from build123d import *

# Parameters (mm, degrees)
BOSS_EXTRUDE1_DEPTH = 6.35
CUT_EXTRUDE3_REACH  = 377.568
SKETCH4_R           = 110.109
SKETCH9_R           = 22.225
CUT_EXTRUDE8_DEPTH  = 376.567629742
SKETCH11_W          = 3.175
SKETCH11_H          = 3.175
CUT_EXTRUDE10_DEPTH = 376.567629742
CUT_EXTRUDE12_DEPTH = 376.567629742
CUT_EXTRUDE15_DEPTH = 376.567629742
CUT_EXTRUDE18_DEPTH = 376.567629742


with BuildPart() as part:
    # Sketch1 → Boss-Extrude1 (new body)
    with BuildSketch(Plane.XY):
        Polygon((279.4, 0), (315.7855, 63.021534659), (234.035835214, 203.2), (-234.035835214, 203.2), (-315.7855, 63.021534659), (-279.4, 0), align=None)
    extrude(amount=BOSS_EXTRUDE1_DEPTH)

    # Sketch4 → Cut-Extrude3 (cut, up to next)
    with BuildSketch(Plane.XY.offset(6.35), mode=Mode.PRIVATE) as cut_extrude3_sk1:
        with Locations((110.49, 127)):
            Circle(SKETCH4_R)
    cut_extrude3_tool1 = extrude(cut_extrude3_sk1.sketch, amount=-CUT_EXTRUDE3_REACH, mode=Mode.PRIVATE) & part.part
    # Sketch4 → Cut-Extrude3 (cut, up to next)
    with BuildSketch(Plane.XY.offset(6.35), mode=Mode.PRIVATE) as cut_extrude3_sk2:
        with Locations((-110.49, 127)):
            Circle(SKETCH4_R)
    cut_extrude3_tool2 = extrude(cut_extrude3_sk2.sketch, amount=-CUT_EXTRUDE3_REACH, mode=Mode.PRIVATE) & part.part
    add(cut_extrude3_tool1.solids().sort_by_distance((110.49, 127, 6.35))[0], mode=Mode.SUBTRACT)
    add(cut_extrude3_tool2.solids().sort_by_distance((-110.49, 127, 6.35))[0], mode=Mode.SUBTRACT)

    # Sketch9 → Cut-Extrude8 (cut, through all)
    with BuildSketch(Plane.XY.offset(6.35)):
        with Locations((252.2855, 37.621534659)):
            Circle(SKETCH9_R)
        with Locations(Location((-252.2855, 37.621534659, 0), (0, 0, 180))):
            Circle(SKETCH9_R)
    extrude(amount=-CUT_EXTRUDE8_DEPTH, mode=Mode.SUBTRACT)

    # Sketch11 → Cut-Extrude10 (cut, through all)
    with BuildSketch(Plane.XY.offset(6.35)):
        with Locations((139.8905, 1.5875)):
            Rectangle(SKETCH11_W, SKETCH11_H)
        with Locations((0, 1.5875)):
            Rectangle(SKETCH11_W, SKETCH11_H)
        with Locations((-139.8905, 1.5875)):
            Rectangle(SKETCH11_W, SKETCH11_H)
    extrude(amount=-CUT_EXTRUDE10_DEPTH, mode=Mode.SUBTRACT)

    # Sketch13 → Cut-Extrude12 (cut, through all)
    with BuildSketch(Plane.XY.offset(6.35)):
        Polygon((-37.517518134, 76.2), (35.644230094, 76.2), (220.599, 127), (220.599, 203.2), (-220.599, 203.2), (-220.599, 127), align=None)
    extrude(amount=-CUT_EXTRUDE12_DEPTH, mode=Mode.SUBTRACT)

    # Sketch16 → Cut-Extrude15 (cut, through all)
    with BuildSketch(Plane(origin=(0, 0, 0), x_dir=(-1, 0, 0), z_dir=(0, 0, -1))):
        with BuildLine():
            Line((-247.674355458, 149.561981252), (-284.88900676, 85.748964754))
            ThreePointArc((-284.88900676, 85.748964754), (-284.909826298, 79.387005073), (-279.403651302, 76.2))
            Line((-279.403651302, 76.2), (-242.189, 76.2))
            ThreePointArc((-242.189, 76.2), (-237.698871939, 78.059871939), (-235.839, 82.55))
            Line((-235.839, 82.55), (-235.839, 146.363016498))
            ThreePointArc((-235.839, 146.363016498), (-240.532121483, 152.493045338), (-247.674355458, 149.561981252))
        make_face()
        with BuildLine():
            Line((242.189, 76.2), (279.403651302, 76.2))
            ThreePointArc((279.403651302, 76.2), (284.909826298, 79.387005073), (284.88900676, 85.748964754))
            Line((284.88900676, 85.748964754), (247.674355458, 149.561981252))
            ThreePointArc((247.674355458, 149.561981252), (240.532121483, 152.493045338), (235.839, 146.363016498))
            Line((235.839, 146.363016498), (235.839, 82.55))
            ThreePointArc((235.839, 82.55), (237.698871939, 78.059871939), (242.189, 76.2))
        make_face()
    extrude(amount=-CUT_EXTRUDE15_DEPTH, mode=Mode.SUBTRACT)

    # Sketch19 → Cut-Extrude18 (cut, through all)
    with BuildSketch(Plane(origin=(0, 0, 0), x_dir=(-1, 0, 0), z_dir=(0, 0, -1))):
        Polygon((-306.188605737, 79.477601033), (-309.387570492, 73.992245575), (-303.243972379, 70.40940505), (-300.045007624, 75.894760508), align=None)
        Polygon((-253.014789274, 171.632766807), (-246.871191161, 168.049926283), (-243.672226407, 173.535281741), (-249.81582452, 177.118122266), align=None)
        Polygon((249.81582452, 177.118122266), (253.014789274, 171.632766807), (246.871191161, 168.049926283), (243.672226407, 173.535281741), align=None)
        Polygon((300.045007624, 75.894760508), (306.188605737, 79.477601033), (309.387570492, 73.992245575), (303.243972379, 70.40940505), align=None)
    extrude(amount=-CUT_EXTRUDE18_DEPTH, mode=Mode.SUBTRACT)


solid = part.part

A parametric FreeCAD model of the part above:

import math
import FreeCAD as App
import Part
import Sketcher

V = App.Vector
Q = App.Units.Quantity

doc = App.newDocument("Part")
body = doc.addObject("PartDesign::Body", "Body")

# Sketch on XY plane
sketch1 = doc.addObject("Sketcher::SketchObject", "Sketch")
body.addObject(sketch1)
sketch1.AttachmentSupport = (doc.XY_Plane, [""])
sketch1.MapMode = "FlatFace"
sketch1.addGeometry([
    Part.LineSegment(V(279, 0, 0), V(316, 63, 0)),  # 0
    Part.LineSegment(V(316, 63, 0), V(234, 203, 0)),  # 1
    Part.LineSegment(V(234, 203, 0), V(-234, 203, 0)),  # 2
    Part.LineSegment(V(-234, 203, 0), V(-316, 63, 0)),  # 3
    Part.LineSegment(V(-316, 63, 0), V(-279, 0, 0)),  # 4
    Part.LineSegment(V(-279, 0, 0), V(279, 0, 0)),  # 5
], False)
sketch1.addConstraint([
    Sketcher.Constraint("Coincident", 0, 2, 1, 1),
    Sketcher.Constraint("Coincident", 1, 2, 2, 1),
    Sketcher.Constraint("Coincident", 2, 2, 3, 1),
    Sketcher.Constraint("Coincident", 3, 2, 4, 1),
    Sketcher.Constraint("Coincident", 4, 2, 5, 1),
    Sketcher.Constraint("Coincident", 5, 2, 0, 1),
    Sketcher.Constraint("Horizontal", 2),
    Sketcher.Constraint("Horizontal", 5),
    Sketcher.Constraint("Symmetric", 4, 2, 5, 2, -1, 1),
    Sketcher.Constraint("Symmetric", 0, 2, 3, 2, -2),
    Sketcher.Constraint("Equal", 1, 3),
    Sketcher.Constraint("DistanceX", 5, 1, 5, 2, Q("22 in")),
    Sketcher.Constraint("DistanceY", -1, 1, 1, 2, Q("8 in")),
    Sketcher.Constraint("Angle", 0, Q("60 deg")),
    Sketcher.Constraint("Angle", 1, Q("120.25 deg")),
    Sketcher.Constraint("Distance", 0, Q("2.865 in")),
])
pad1 = doc.addObject("PartDesign::Pad", "Pad")
body.addObject(pad1)
pad1.Profile = sketch1
pad1.Length = Q("0.25 in")

# Sketch on XY plane
sketch2 = doc.addObject("Sketcher::SketchObject", "Sketch001")
body.addObject(sketch2)
sketch2.AttachmentSupport = (doc.XY_Plane, [""])
sketch2.MapMode = "FlatFace"
sketch2.AttachmentOffset = App.Placement(V(0, 0, 0.25 * 25.4), App.Rotation())
sketch2.addGeometry(Part.Circle(V(110, 127, 0), V(0, 0, 1), 110), False)
sketch2.addConstraint([
    Sketcher.Constraint("Diameter", 0, Q("8.67 in")),
    Sketcher.Constraint("DistanceY", -1, 1, 0, 3, Q("5 in")),
    Sketcher.Constraint("DistanceX", -1, 1, 0, 3, Q("4.35 in")),
])
pocket1 = doc.addObject("PartDesign::Pocket", "Pocket")
body.addObject(pocket1)
pocket1.Profile = sketch2
pocket1.Type = "UpToFirst"

# Sketch on XY plane
sketch3 = doc.addObject("Sketcher::SketchObject", "Sketch002")
body.addObject(sketch3)
sketch3.AttachmentSupport = (doc.XY_Plane, [""])
sketch3.MapMode = "FlatFace"
sketch3.AttachmentOffset = App.Placement(V(0, 0, 0.25 * 25.4), App.Rotation())
sketch3.addGeometry(Part.Circle(V(-110, 127, 0), V(0, 0, 1), 110), False)
sketch3.addConstraint([
    Sketcher.Constraint("Diameter", 0, Q("8.67 in")),
    Sketcher.Constraint("DistanceY", -1, 1, 0, 3, Q("5 in")),
    Sketcher.Constraint("DistanceX", 0, 3, -1, 1, Q("4.35 in")),
])
pocket2 = doc.addObject("PartDesign::Pocket", "Pocket001")
body.addObject(pocket2)
pocket2.Profile = sketch3
pocket2.Type = "UpToFirst"

# Sketch on XY plane
sketch4 = doc.addObject("Sketcher::SketchObject", "Sketch003")
body.addObject(sketch4)
sketch4.AttachmentSupport = (doc.XY_Plane, [""])
sketch4.MapMode = "FlatFace"
sketch4.AttachmentOffset = App.Placement(V(0, 0, 0.25 * 25.4), App.Rotation())
sketch4.addGeometry([
    Part.Circle(V(252, 38, 0), V(0, 0, 1), 22),
    Part.Circle(V(-252, 38, 0), V(0, 0, 1), 22),
], False)
sketch4.addConstraint([
    Sketcher.Constraint("Equal", 0, 1),
    Sketcher.Constraint("Symmetric", 0, 3, 1, 3, -2),
    Sketcher.Constraint("Diameter", 0, Q("1.75 in")),
    Sketcher.Constraint("DistanceX", 1, 3, 0, 3, Q("19.865 in")),
    Sketcher.Constraint("DistanceY", -1, 1, 0, 3, Q("37.621535 mm")),
])
pocket3 = doc.addObject("PartDesign::Pocket", "Pocket002")
body.addObject(pocket3)
pocket3.Profile = sketch4
pocket3.Type = "ThroughAll"

# Sketch on XY plane
sketch5 = doc.addObject("Sketcher::SketchObject", "Sketch004")
body.addObject(sketch5)
sketch5.AttachmentSupport = (doc.XY_Plane, [""])
sketch5.MapMode = "FlatFace"
sketch5.AttachmentOffset = App.Placement(V(0, 0, 0.25 * 25.4), App.Rotation())
sketch5.addGeometry([
    Part.LineSegment(V(138.3, 3.2, 0), V(138.3, 0, 0)),  # 0
    Part.LineSegment(V(138.3, 0, 0), V(141.5, 0, 0)),  # 1
    Part.LineSegment(V(141.5, 0, 0), V(141.5, 3.2, 0)),  # 2
    Part.LineSegment(V(141.5, 3.2, 0), V(138.3, 3.2, 0)),  # 3
    Part.LineSegment(V(-1.6, 3.2, 0), V(-1.6, 0, 0)),  # 4
    Part.LineSegment(V(-1.6, 0, 0), V(1.6, 0, 0)),  # 5
    Part.LineSegment(V(1.6, 0, 0), V(1.6, 3.2, 0)),  # 6
    Part.LineSegment(V(1.6, 3.2, 0), V(-1.6, 3.2, 0)),  # 7
    Part.LineSegment(V(-141.5, 3.2, 0), V(-141.5, 0, 0)),  # 8
    Part.LineSegment(V(-141.5, 0, 0), V(-138.3, 0, 0)),  # 9
    Part.LineSegment(V(-138.3, 0, 0), V(-138.3, 3.2, 0)),  # 10
    Part.LineSegment(V(-138.3, 3.2, 0), V(-141.5, 3.2, 0)),  # 11
], False)
sketch5.addConstraint([
    Sketcher.Constraint("Coincident", 0, 2, 1, 1),
    Sketcher.Constraint("Coincident", 1, 2, 2, 1),
    Sketcher.Constraint("Coincident", 2, 2, 3, 1),
    Sketcher.Constraint("Coincident", 3, 2, 0, 1),
    Sketcher.Constraint("Coincident", 4, 2, 5, 1),
    Sketcher.Constraint("Coincident", 5, 2, 6, 1),
    Sketcher.Constraint("Coincident", 6, 2, 7, 1),
    Sketcher.Constraint("Coincident", 7, 2, 4, 1),
    Sketcher.Constraint("Coincident", 8, 2, 9, 1),
    Sketcher.Constraint("Coincident", 9, 2, 10, 1),
    Sketcher.Constraint("Coincident", 10, 2, 11, 1),
    Sketcher.Constraint("Coincident", 11, 2, 8, 1),
    Sketcher.Constraint("Vertical", 0),
    Sketcher.Constraint("Horizontal", 1),
    Sketcher.Constraint("Vertical", 2),
    Sketcher.Constraint("Horizontal", 3),
    Sketcher.Constraint("Vertical", 4),
    Sketcher.Constraint("Horizontal", 5),
    Sketcher.Constraint("Vertical", 6),
    Sketcher.Constraint("Horizontal", 7),
    Sketcher.Constraint("Vertical", 8),
    Sketcher.Constraint("Horizontal", 9),
    Sketcher.Constraint("Vertical", 10),
    Sketcher.Constraint("Horizontal", 11),
    Sketcher.Constraint("Symmetric", 4, 2, 5, 2, -1, 1),
    Sketcher.Constraint("Symmetric", 1, 2, 8, 2, -1, 1),
    Sketcher.Constraint("Symmetric", 0, 2, 9, 2, -2),
    Sketcher.Constraint("Horizontal", 3, 2, 6, 2),
    Sketcher.Constraint("Horizontal", 7, 2, 10, 2),
    Sketcher.Constraint("Equal", 3, 5),
    Sketcher.Constraint("Equal", 11, 0),
    Sketcher.Constraint("DistanceX", 1, 1, 1, 2, Q("0.125 in")),
    Sketcher.Constraint("DistanceX", -1, 1, 1, 2, Q("5.57 in")),
])
pocket4 = doc.addObject("PartDesign::Pocket", "Pocket003")
body.addObject(pocket4)
pocket4.Profile = sketch5
pocket4.Type = "ThroughAll"

# Sketch on XY plane
sketch6 = doc.addObject("Sketcher::SketchObject", "Sketch005")
body.addObject(sketch6)
sketch6.AttachmentSupport = (doc.XY_Plane, [""])
sketch6.MapMode = "FlatFace"
sketch6.AttachmentOffset = App.Placement(V(0, 0, 0.25 * 25.4), App.Rotation())
sketch6.addGeometry([
    Part.LineSegment(V(-38, 76, 0), V(36, 76, 0)),  # 0
    Part.LineSegment(V(36, 76, 0), V(221, 127, 0)),  # 1
    Part.LineSegment(V(221, 127, 0), V(221, 203, 0)),  # 2
    Part.LineSegment(V(221, 203, 0), V(-221, 203, 0)),  # 3
    Part.LineSegment(V(-221, 203, 0), V(-221, 127, 0)),  # 4
    Part.LineSegment(V(-221, 127, 0), V(-38, 76, 0)),  # 5
], False)
sketch6.addConstraint([
    Sketcher.Constraint("Coincident", 0, 2, 1, 1),
    Sketcher.Constraint("Coincident", 1, 2, 2, 1),
    Sketcher.Constraint("Coincident", 2, 2, 3, 1),
    Sketcher.Constraint("Coincident", 3, 2, 4, 1),
    Sketcher.Constraint("Coincident", 4, 2, 5, 1),
    Sketcher.Constraint("Coincident", 5, 2, 0, 1),
    Sketcher.Constraint("Horizontal", 0),
    Sketcher.Constraint("Vertical", 2),
    Sketcher.Constraint("Horizontal", 3),
    Sketcher.Constraint("Vertical", 4),
    Sketcher.Constraint("Symmetric", 1, 2, 4, 2, -2),
    Sketcher.Constraint("DistanceY", 2, 1, 2, 2, Q("3 in")),
    Sketcher.Constraint("DistanceY", -1, 1, 0, 2, Q("3 in")),
    Sketcher.Constraint("DistanceY", -1, 1, 1, 2, Q("5 in")),
    Sketcher.Constraint("DistanceX", 3, 2, 3, 1, Q("17.37 in")),
    Sketcher.Constraint("DistanceX", 0, 1, 0, 2, Q("73.161748 mm")),
    Sketcher.Constraint("DistanceX", -1, 1, 0, 2, Q("35.64423 mm")),
])
pocket5 = doc.addObject("PartDesign::Pocket", "Pocket004")
body.addObject(pocket5)
pocket5.Profile = sketch6
pocket5.Type = "ThroughAll"

# Sketch on XY plane
sketch7 = doc.addObject("Sketcher::SketchObject", "Sketch006")
body.addObject(sketch7)
sketch7.AttachmentSupport = (doc.XY_Plane, [""])
sketch7.MapMode = "FlatFace"
sketch7.addGeometry([
    Part.LineSegment(V(248, 150, 0), V(285, 86, 0)),  # 0
    Part.ArcOfCircle(Part.Circle(V(279, 83, 0), V(0, 0, 1), 6), math.radians(-90), math.radians(30)),  # 1
    Part.LineSegment(V(279, 76, 0), V(242, 76, 0)),  # 2
    Part.ArcOfCircle(Part.Circle(V(242, 83, 0), V(0, 0, 1), 6), math.radians(180), math.radians(270)),  # 3
    Part.LineSegment(V(236, 83, 0), V(236, 146, 0)),  # 4
    Part.ArcOfCircle(Part.Circle(V(242, 146, 0), V(0, 0, 1), 6), math.radians(30), math.radians(180)),  # 5
    Part.LineSegment(V(-242, 76, 0), V(-279, 76, 0)),  # 6
    Part.ArcOfCircle(Part.Circle(V(-279, 83, 0), V(0, 0, 1), 6), math.radians(150), math.radians(270)),  # 7
    Part.LineSegment(V(-285, 86, 0), V(-248, 150, 0)),  # 8
    Part.ArcOfCircle(Part.Circle(V(-242, 146, 0), V(0, 0, 1), 6), math.radians(0), math.radians(150)),  # 9
    Part.LineSegment(V(-236, 146, 0), V(-236, 83, 0)),  # 10
    Part.ArcOfCircle(Part.Circle(V(-242, 83, 0), V(0, 0, 1), 6), math.radians(-90), math.radians(0)),  # 11
], False)
sketch7.addConstraint([
    Sketcher.Constraint("Tangent", 0, 2, 1, 2),
    Sketcher.Constraint("Tangent", 1, 1, 2, 1),
    Sketcher.Constraint("Tangent", 2, 2, 3, 2),
    Sketcher.Constraint("Tangent", 3, 1, 4, 1),
    Sketcher.Constraint("Tangent", 4, 2, 5, 2),
    Sketcher.Constraint("Tangent", 5, 1, 0, 1),
    Sketcher.Constraint("Tangent", 6, 2, 7, 2),
    Sketcher.Constraint("Tangent", 7, 1, 8, 1),
    Sketcher.Constraint("Tangent", 8, 2, 9, 2),
    Sketcher.Constraint("Tangent", 9, 1, 10, 1),
    Sketcher.Constraint("Tangent", 10, 2, 11, 2),
    Sketcher.Constraint("Tangent", 11, 1, 6, 1),
    Sketcher.Constraint("Horizontal", 2),
    Sketcher.Constraint("Vertical", 4),
    Sketcher.Constraint("Horizontal", 6),
    Sketcher.Constraint("Vertical", 10),
    Sketcher.Constraint("Equal", 1, 3),
    Sketcher.Constraint("Equal", 3, 5),
    Sketcher.Constraint("Equal", 5, 7),
    Sketcher.Constraint("Equal", 7, 9),
    Sketcher.Constraint("Equal", 9, 11),
    Sketcher.Constraint("Symmetric", 1, 3, 7, 3, -2),
    Sketcher.Constraint("Symmetric", 5, 3, 9, 3, -2),
    Sketcher.Constraint("Radius", 1, Q("0.25 in")),
    Sketcher.Constraint("DistanceY", -1, 1, 1, 1, Q("3 in")),
    Sketcher.Constraint("Angle", 0, Q("-59.75 deg")),
    Sketcher.Constraint("DistanceX", 9, 3, 5, 3, Q("19.07 in")),
    Sketcher.Constraint("DistanceX", 2, 2, 2, 1, Q("37.214651 mm")),
])
pocket6 = doc.addObject("PartDesign::Pocket", "Pocket005")
body.addObject(pocket6)
pocket6.Profile = sketch7
pocket6.Type = "ThroughAll"
pocket6.Reversed = True

# Sketch on XY plane
sketch8 = doc.addObject("Sketcher::SketchObject", "Sketch007")
body.addObject(sketch8)
sketch8.AttachmentSupport = (doc.XY_Plane, [""])
sketch8.MapMode = "FlatFace"
sketch8.addGeometry([
    Part.LineSegment(V(306, 79, 0), V(309, 74, 0)),  # 0
    Part.LineSegment(V(309, 74, 0), V(303, 70, 0)),  # 1
    Part.LineSegment(V(303, 70, 0), V(300, 76, 0)),  # 2
    Part.LineSegment(V(300, 76, 0), V(306, 79, 0)),  # 3
    Part.LineSegment(V(253, 172, 0), V(247, 168, 0)),  # 4
    Part.LineSegment(V(247, 168, 0), V(244, 174, 0)),  # 5
    Part.LineSegment(V(244, 174, 0), V(250, 177, 0)),  # 6
    Part.LineSegment(V(250, 177, 0), V(253, 172, 0)),  # 7
    Part.LineSegment(V(-253, 172, 0), V(-250, 177, 0)),  # 8
    Part.LineSegment(V(-250, 177, 0), V(-244, 174, 0)),  # 9
    Part.LineSegment(V(-244, 174, 0), V(-247, 168, 0)),  # 10
    Part.LineSegment(V(-247, 168, 0), V(-253, 172, 0)),  # 11
    Part.LineSegment(V(-306, 79, 0), V(-300, 76, 0)),  # 12
    Part.LineSegment(V(-300, 76, 0), V(-303, 70, 0)),  # 13
    Part.LineSegment(V(-303, 70, 0), V(-309, 74, 0)),  # 14
    Part.LineSegment(V(-309, 74, 0), V(-306, 79, 0)),  # 15
], False)
sketch8.addConstraint([
    Sketcher.Constraint("Coincident", 0, 2, 1, 1),
    Sketcher.Constraint("Coincident", 1, 2, 2, 1),
    Sketcher.Constraint("Coincident", 2, 2, 3, 1),
    Sketcher.Constraint("Coincident", 3, 2, 0, 1),
    Sketcher.Constraint("Coincident", 4, 2, 5, 1),
    Sketcher.Constraint("Coincident", 5, 2, 6, 1),
    Sketcher.Constraint("Coincident", 6, 2, 7, 1),
    Sketcher.Constraint("Coincident", 7, 2, 4, 1),
    Sketcher.Constraint("Coincident", 8, 2, 9, 1),
    Sketcher.Constraint("Coincident", 9, 2, 10, 1),
    Sketcher.Constraint("Coincident", 10, 2, 11, 1),
    Sketcher.Constraint("Coincident", 11, 2, 8, 1),
    Sketcher.Constraint("Coincident", 12, 2, 13, 1),
    Sketcher.Constraint("Coincident", 13, 2, 14, 1),
    Sketcher.Constraint("Coincident", 14, 2, 15, 1),
    Sketcher.Constraint("Coincident", 15, 2, 12, 1),
    Sketcher.Constraint("Symmetric", 6, 2, 8, 2, -2),
    Sketcher.Constraint("Symmetric", 5, 2, 9, 2, -2),
    Sketcher.Constraint("Symmetric", 4, 2, 10, 2, -2),
    Sketcher.Constraint("Symmetric", 7, 2, 11, 2, -2),
    Sketcher.Constraint("Symmetric", 2, 2, 12, 2, -2),
    Sketcher.Constraint("Symmetric", 1, 2, 13, 2, -2),
    Sketcher.Constraint("Symmetric", 0, 2, 14, 2, -2),
    Sketcher.Constraint("Symmetric", 3, 2, 15, 2, -2),
    Sketcher.Constraint("Perpendicular", 0, 1),
    Sketcher.Constraint("Perpendicular", 1, 2),
    Sketcher.Constraint("Perpendicular", 2, 3),
    Sketcher.Constraint("Parallel", 3, 4),
    Sketcher.Constraint("Perpendicular", 4, 5),
    Sketcher.Constraint("Perpendicular", 5, 6),
    Sketcher.Constraint("Perpendicular", 6, 7),
    Sketcher.Constraint("Equal", 3, 4),
    Sketcher.Constraint("Equal", 2, 5),
    Sketcher.Constraint("Distance", 0, Q("0.25 in")),
    Sketcher.Constraint("Distance", 1, Q("0.28 in")),
    Sketcher.Constraint("Angle", 0, Q("-59.75 deg")),
    Sketcher.Constraint("DistanceY", -1, 1, 3, 2, Q("79.477601 mm")),
    Sketcher.Constraint("DistanceX", -1, 1, 0, 2, Q("309.38757 mm")),
    Sketcher.Constraint("DistanceX", -1, 1, 4, 2, Q("246.871191 mm")),
    Sketcher.Constraint("DistanceY", -1, 1, 5, 2, Q("173.535282 mm")),
])
pocket7 = doc.addObject("PartDesign::Pocket", "Pocket006")
body.addObject(pocket7)
pocket7.Profile = sketch8
pocket7.Type = "ThroughAll"
pocket7.Reversed = True

doc.recompute()
